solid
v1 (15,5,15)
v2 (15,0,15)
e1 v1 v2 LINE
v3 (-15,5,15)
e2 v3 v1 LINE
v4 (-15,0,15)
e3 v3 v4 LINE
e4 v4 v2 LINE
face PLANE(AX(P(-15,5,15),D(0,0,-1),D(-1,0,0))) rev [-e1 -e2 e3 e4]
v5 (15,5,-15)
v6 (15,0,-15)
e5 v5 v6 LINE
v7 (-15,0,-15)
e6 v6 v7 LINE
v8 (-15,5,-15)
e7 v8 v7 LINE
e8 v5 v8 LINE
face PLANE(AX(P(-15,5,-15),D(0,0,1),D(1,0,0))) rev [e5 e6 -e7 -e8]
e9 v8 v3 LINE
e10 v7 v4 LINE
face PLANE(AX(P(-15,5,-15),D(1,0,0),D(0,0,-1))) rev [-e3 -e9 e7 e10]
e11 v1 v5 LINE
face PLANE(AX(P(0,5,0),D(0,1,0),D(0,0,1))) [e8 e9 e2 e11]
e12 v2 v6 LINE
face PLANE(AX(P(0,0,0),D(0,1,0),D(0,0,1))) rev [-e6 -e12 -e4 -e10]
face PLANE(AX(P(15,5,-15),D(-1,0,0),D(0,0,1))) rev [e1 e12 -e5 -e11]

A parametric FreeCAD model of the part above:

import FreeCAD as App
import Part
import Sketcher
from FreeCAD import Vector
Q = App.Units.Quantity

doc = App.newDocument("Part")
body = doc.addObject("PartDesign::Body", "Body")

sketch1 = body.newObject("Sketcher::SketchObject", "Sketch")
sketch1.AttachmentSupport = (doc.getObject("XZ_Plane"), [""])
sketch1.MapMode = "FlatFace"
sketch1.addGeometry(Part.LineSegment(Vector(-15, -15, 0), Vector(-15, 15, 0)), False)
sketch1.addGeometry(Part.LineSegment(Vector(-15, 15, 0), Vector(15, 15, 0)), False)
sketch1.addGeometry(Part.LineSegment(Vector(15, 15, 0), Vector(15, -15, 0)), False)
sketch1.addGeometry(Part.LineSegment(Vector(15, -15, 0), Vector(-15, -15, 0)), False)
sketch1.addConstraint(Sketcher.Constraint("Coincident", 0, 2, 1, 1))
sketch1.addConstraint(Sketcher.Constraint("Coincident", 1, 2, 2, 1))
sketch1.addConstraint(Sketcher.Constraint("Coincident", 2, 2, 3, 1))
sketch1.addConstraint(Sketcher.Constraint("Coincident", 3, 2, 0, 1))
sketch1.addConstraint(Sketcher.Constraint("Vertical", 0))
sketch1.addConstraint(Sketcher.Constraint("Horizontal", 1))
sketch1.addConstraint(Sketcher.Constraint("Vertical", 2))
sketch1.addConstraint(Sketcher.Constraint("Horizontal", 3))
sketch1.addConstraint(Sketcher.Constraint("Symmetric", 0, 2, 2, 2, -1, 1))
sketch1.addConstraint(Sketcher.Constraint("Equal", 3, 0))
sketch1.addConstraint(Sketcher.Constraint("DistanceX", 1, 1, 1, 2, Q("30 mm")))
pad1 = body.newObject("PartDesign::Pad", "Pad")
pad1.Profile = sketch1
pad1.Length = 5
pad1.Reversed = True

doc.recompute()
